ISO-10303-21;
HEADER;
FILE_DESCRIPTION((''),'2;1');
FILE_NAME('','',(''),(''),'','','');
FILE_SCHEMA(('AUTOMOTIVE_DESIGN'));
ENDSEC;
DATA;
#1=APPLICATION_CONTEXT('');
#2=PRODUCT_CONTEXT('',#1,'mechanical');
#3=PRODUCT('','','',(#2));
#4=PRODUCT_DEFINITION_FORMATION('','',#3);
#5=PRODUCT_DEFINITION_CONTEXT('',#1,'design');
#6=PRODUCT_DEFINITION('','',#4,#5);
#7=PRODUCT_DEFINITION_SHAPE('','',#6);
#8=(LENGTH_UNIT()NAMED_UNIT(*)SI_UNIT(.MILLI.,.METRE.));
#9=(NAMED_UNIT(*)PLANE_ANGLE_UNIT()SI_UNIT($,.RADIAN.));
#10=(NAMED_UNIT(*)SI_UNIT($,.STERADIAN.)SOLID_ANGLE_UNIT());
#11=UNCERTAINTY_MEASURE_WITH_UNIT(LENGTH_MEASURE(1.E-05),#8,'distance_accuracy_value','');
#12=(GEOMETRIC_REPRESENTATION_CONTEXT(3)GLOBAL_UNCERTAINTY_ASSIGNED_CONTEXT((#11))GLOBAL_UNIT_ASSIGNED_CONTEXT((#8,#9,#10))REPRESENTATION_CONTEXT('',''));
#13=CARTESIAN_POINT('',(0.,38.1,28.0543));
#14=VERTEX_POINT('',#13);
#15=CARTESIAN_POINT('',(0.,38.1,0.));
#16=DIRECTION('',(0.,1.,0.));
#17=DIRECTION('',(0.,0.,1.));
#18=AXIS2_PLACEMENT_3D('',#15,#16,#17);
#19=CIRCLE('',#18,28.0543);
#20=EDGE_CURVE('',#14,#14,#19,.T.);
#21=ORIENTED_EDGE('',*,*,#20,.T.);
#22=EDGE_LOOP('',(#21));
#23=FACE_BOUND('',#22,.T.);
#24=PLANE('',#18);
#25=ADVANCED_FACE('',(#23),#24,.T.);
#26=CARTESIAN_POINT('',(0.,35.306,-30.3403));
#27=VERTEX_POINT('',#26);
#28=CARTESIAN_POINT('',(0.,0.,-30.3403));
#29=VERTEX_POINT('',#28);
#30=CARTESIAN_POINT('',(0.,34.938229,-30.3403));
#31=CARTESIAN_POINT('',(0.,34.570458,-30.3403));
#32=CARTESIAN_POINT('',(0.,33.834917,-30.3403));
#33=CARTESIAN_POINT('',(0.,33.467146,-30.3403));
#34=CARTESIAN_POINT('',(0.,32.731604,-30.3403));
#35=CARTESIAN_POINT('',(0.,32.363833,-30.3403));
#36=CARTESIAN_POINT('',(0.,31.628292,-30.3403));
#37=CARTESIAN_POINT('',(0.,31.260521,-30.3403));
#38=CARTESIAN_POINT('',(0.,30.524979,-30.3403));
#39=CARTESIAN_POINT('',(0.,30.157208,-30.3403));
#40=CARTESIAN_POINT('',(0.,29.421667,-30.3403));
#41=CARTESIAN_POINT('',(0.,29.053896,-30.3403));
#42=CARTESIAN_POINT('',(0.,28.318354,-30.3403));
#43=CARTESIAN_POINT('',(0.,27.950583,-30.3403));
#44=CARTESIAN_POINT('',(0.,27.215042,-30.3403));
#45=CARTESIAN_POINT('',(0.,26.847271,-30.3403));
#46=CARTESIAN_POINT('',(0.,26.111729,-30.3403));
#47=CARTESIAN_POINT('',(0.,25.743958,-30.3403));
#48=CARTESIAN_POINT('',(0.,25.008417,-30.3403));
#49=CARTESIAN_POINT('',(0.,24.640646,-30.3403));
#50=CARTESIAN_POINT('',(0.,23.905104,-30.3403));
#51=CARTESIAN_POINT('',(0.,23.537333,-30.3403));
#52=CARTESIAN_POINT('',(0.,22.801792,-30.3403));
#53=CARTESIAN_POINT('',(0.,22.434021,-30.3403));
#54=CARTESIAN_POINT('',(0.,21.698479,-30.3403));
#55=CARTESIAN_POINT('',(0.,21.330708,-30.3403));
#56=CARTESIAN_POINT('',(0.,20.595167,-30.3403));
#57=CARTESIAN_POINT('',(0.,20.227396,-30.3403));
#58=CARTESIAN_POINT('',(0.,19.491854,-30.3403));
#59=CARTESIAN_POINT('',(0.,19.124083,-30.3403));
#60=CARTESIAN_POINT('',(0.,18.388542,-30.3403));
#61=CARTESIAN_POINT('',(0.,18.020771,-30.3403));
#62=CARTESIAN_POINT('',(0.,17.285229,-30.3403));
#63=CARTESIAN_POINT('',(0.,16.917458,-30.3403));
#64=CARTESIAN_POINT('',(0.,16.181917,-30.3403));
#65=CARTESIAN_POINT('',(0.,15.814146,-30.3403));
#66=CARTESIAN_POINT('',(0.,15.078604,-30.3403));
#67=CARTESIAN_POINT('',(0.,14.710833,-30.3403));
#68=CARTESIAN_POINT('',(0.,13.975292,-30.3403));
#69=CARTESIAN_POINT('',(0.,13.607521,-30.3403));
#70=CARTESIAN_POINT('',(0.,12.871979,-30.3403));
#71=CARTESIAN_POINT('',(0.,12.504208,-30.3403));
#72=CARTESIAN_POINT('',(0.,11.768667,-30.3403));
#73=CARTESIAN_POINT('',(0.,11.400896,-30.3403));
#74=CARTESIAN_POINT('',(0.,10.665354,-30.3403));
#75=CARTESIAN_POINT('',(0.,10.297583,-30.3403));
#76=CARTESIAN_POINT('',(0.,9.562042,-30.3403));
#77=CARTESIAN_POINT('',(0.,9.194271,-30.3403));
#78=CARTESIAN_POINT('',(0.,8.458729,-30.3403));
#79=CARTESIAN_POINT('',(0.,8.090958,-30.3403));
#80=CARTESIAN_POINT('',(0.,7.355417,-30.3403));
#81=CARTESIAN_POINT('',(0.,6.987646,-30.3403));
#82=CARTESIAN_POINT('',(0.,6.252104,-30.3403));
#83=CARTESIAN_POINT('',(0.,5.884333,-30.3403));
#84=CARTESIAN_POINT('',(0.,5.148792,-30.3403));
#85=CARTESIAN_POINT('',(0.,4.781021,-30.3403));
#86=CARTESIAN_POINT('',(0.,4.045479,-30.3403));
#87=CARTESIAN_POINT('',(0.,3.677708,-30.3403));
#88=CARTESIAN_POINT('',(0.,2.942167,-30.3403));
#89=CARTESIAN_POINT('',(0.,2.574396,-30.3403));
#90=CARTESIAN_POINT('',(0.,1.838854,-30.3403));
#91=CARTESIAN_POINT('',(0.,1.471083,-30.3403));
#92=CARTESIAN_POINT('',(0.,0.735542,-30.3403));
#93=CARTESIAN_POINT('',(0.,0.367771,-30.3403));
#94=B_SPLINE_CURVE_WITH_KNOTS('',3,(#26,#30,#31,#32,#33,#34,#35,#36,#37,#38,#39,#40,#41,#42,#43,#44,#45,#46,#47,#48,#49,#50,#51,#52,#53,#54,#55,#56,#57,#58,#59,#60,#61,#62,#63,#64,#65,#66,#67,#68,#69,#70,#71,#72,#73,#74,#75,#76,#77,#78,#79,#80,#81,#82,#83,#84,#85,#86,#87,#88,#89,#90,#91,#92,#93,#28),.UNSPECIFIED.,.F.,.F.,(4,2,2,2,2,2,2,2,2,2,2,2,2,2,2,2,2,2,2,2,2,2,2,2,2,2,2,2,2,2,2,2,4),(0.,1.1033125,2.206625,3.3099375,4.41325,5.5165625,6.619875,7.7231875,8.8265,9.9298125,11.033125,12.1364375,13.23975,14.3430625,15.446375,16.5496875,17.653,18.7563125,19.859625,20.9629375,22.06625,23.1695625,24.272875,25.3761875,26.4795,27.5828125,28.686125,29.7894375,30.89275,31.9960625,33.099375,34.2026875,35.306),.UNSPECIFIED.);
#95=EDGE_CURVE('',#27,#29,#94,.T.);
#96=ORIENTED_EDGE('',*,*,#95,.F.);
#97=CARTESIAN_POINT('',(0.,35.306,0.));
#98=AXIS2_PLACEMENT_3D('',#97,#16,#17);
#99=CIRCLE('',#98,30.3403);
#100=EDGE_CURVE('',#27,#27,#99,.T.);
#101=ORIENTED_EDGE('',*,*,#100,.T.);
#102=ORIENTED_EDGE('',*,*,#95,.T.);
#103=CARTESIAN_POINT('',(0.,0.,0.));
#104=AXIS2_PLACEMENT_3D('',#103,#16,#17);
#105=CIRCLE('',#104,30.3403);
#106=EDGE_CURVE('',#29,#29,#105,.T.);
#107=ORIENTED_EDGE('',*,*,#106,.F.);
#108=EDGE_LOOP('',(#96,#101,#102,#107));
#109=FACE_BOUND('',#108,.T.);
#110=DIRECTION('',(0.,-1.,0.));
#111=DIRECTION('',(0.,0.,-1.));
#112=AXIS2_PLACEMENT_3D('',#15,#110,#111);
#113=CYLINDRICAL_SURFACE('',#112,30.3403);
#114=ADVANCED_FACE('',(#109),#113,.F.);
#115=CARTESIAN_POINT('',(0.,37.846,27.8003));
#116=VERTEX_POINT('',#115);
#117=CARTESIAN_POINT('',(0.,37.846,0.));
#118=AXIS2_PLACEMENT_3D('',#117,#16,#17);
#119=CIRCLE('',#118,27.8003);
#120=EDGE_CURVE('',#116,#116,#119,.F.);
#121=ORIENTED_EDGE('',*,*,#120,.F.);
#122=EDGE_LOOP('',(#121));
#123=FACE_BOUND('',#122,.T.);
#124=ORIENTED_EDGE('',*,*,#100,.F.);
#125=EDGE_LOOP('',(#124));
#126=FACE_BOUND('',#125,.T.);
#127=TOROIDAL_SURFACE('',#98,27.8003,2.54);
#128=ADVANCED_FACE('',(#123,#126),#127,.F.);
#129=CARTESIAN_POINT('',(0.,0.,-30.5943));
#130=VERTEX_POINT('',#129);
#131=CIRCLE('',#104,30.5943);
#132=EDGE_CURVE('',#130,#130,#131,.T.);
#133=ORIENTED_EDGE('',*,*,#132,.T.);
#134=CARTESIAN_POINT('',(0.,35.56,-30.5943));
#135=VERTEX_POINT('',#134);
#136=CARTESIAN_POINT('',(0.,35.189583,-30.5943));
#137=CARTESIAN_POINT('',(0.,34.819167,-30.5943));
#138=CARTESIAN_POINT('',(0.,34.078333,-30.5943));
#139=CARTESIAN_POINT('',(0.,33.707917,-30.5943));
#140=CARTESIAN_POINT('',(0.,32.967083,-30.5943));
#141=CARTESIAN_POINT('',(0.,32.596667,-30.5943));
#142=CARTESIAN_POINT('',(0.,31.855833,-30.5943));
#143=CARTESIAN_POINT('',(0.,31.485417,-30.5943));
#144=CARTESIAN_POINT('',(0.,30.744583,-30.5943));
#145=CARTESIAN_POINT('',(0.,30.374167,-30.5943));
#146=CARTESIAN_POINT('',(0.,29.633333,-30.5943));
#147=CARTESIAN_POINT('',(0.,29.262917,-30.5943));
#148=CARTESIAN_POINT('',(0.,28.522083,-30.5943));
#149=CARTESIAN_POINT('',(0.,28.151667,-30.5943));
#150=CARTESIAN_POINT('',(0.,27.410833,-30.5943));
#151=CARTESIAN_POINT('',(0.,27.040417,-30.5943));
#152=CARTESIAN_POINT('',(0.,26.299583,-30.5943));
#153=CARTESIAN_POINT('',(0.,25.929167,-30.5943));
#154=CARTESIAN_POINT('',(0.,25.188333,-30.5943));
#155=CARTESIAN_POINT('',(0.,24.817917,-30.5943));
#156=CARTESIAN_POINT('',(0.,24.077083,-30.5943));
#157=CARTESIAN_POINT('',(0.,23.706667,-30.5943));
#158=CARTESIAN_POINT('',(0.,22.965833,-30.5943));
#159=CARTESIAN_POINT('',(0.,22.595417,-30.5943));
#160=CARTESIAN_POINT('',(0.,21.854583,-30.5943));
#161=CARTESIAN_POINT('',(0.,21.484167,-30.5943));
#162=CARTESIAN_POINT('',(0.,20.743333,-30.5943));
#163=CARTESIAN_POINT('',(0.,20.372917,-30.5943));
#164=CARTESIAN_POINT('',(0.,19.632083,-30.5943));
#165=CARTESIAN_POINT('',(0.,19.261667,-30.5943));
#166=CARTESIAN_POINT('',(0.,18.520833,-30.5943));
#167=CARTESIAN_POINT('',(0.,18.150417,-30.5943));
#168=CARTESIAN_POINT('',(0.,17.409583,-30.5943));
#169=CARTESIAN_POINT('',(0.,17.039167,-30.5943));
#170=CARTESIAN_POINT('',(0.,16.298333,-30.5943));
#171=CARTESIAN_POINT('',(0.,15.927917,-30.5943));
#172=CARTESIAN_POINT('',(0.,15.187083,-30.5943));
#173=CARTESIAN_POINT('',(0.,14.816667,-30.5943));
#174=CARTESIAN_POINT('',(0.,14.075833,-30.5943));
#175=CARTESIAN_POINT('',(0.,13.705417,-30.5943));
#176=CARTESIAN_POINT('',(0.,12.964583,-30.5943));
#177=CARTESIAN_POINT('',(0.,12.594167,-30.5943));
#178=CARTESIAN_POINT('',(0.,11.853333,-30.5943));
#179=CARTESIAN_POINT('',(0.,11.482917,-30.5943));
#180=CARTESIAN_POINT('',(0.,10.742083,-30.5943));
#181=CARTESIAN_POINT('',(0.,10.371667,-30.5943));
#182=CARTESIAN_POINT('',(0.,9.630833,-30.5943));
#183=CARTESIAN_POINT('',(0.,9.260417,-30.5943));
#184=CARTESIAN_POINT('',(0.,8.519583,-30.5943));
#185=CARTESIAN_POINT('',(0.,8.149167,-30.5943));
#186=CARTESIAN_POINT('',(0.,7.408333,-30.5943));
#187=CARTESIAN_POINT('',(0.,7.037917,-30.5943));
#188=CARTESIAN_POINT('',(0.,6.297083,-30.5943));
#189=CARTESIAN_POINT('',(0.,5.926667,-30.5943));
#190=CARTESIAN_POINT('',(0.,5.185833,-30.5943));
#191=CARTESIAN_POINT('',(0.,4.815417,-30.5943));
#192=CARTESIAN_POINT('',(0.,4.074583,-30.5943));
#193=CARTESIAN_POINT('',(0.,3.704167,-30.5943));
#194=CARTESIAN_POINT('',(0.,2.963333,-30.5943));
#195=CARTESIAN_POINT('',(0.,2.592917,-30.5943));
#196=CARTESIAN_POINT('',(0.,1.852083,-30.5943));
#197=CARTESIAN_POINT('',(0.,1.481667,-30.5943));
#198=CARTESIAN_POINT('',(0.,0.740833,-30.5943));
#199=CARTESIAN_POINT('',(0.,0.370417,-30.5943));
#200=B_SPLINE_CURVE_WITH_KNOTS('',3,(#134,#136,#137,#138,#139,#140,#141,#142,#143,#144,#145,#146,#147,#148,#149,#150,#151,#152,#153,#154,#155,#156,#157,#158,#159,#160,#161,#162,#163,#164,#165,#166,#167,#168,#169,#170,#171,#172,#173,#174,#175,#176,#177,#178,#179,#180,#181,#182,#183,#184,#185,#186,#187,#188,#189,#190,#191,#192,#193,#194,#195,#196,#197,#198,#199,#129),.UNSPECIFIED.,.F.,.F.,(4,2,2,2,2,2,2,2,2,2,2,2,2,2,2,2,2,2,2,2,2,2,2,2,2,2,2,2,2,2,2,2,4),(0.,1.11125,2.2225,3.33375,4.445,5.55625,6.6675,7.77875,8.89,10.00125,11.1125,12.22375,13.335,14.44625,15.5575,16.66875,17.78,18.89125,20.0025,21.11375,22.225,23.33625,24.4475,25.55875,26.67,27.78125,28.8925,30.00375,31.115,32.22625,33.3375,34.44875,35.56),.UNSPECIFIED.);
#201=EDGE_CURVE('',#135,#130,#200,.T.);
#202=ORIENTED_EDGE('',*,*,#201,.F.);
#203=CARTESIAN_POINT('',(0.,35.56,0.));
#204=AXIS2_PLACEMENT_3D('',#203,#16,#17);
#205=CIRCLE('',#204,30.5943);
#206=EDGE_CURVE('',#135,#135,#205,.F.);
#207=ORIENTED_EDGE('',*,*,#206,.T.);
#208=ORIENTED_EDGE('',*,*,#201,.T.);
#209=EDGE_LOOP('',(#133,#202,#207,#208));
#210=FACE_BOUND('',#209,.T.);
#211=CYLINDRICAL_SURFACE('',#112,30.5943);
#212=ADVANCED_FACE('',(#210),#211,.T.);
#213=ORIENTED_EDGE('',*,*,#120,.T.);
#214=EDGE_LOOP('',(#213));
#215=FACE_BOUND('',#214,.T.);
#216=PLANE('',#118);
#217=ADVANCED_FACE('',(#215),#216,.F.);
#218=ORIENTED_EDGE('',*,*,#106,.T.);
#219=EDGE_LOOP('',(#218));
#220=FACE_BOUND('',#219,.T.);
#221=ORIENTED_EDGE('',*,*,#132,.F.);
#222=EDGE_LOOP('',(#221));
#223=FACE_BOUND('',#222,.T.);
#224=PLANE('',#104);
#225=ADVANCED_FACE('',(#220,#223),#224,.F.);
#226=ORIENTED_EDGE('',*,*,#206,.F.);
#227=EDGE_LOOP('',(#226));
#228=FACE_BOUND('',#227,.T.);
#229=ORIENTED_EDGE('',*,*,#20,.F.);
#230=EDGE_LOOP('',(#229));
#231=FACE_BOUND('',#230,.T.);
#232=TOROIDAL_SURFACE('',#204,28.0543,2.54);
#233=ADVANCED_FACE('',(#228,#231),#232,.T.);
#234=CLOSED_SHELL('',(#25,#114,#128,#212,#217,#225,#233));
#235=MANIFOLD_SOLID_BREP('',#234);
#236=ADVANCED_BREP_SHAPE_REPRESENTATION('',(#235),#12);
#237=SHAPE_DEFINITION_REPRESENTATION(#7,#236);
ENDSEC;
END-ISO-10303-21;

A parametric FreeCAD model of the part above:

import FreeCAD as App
import Part
import Sketcher

V = App.Vector
Q = App.Units.Quantity


def edges_at(feature, points):
    """Names of the edges that pass closest to the given points."""
    edges = feature.Shape.Edges
    near = lambda p: min(range(len(edges)), key=lambda i: edges[i].distToShape(Part.Vertex(*p))[0])
    return sorted({f"Edge{near(p) + 1}" for p in points})


def faces_at(feature, points):
    """Names of the faces that lie closest to the given points."""
    faces = feature.Shape.Faces
    near = lambda p: min(range(len(faces)), key=lambda i: faces[i].distToShape(Part.Vertex(*p))[0])
    return sorted({f"Face{near(p) + 1}" for p in points})

doc = App.newDocument("Part")
body = doc.addObject("PartDesign::Body", "Body")

# Sketch on XZ plane
sketch1 = body.newObject("Sketcher::SketchObject", "Sketch")
sketch1.AttachmentSupport = (doc.getObject("XZ_Plane"), [""])
sketch1.MapMode = "FlatFace"
sketch1.addGeometry(Part.Circle(V(0, 0, 0), V(0, 0, 1), 31), False)
sketch1.addConstraint([
    Sketcher.Constraint("Coincident", 0, 3, -1, 1),
    Sketcher.Constraint("Diameter", 0, Q("2.409 in")),
])
pad1 = body.newObject("PartDesign::Pad", "Pad")
pad1.Profile = sketch1
pad1.Length = Q("1.5 in")
pad1.Reversed = True
doc.recompute()

thickness = body.newObject("PartDesign::Thickness", "Thickness")
thickness.Base = (pad1, faces_at(pad1, [(0, 0, 0)]))
thickness.Value = Q("0.01 in")
thickness.Reversed = True
thickness.Join = "Intersection"
doc.recompute()

fillet = body.newObject("PartDesign::Fillet", "Fillet")
fillet.Base = (thickness, edges_at(thickness, [(0, 37.846, 30.34)]))
fillet.Radius = Q("0.1 in")
doc.recompute()

fillet2 = body.newObject("PartDesign::Fillet", "Fillet001")
fillet2.Base = (fillet, edges_at(fillet, [(0, 38.1, 30.594)]))
fillet2.Radius = Q("0.1 in")

doc.recompute()
